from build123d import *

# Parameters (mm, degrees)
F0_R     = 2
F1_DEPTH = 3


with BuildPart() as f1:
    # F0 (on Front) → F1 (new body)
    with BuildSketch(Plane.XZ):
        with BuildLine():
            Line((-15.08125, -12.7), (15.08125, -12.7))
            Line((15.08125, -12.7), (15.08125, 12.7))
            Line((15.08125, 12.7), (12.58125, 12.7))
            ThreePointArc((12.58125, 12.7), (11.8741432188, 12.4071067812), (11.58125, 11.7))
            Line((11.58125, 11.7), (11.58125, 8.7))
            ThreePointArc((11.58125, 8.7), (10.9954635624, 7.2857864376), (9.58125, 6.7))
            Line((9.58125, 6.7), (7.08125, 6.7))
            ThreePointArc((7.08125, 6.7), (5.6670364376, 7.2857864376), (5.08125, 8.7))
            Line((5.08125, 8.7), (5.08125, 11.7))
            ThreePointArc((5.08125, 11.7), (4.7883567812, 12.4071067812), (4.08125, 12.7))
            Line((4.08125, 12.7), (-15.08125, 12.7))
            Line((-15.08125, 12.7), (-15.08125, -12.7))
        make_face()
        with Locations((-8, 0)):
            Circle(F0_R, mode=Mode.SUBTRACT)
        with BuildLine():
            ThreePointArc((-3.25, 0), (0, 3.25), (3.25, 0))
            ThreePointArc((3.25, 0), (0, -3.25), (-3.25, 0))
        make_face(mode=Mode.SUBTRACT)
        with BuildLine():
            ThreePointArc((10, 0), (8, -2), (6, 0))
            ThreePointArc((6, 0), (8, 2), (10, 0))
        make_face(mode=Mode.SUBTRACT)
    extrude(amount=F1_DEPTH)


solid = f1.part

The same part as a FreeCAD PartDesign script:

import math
import FreeCAD as App
import Part
import Sketcher
from FreeCAD import Vector
Q = App.Units.Quantity

doc = App.newDocument("Part")
body = doc.addObject("PartDesign::Body", "Body")

# Sketch on XZ plane
sketch1 = body.newObject("Sketcher::SketchObject", "Sketch")
sketch1.AttachmentSupport = (doc.getObject("XZ_Plane"), [""])
sketch1.MapMode = "FlatFace"
sketch1.addGeometry(Part.LineSegment(Vector(-15.1, -12.7, 0), Vector(15.1, -12.7, 0)), False)
sketch1.addGeometry(Part.LineSegment(Vector(15.1, -12.7, 0), Vector(15.1, 12.7, 0)), False)
sketch1.addGeometry(Part.LineSegment(Vector(15.1, 12.7, 0), Vector(12.6, 12.7, 0)), False)
sketch1.addGeometry(Part.ArcOfCircle(Part.Circle(Vector(12.6, 11.7, 0), Vector(0, 0, 1), 1), math.radians(90), math.radians(180)), False)
sketch1.addGeometry(Part.LineSegment(Vector(11.6, 11.7, 0), Vector(11.6, 8.7, 0)), False)
sketch1.addGeometry(Part.ArcOfCircle(Part.Circle(Vector(9.6, 8.7, 0), Vector(0, 0, 1), 2), math.radians(-90), math.radians(0)), False)
sketch1.addGeometry(Part.LineSegment(Vector(9.6, 6.7, 0), Vector(7.1, 6.7, 0)), False)
sketch1.addGeometry(Part.ArcOfCircle(Part.Circle(Vector(7.1, 8.7, 0), Vector(0, 0, 1), 2), math.radians(180), math.radians(270)), False)
sketch1.addGeometry(Part.LineSegment(Vector(5.1, 8.7, 0), Vector(5.1, 11.7, 0)), False)
sketch1.addGeometry(Part.ArcOfCircle(Part.Circle(Vector(4.1, 11.7, 0), Vector(0, 0, 1), 1), math.radians(0), math.radians(90)), False)
sketch1.addGeometry(Part.LineSegment(Vector(4.1, 12.7, 0), Vector(-15.1, 12.7, 0)), False)
sketch1.addGeometry(Part.LineSegment(Vector(-15.1, 12.7, 0), Vector(-15.1, -12.7, 0)), False)
sketch1.addGeometry(Part.Circle(Vector(-8, 0, 0), Vector(0, 0, 1), 2), False)
sketch1.addGeometry(Part.Circle(Vector(8, 0, 0), Vector(0, 0, 1), 2), False)
sketch1.addGeometry(Part.Circle(Vector(0, 0, 0), Vector(0, 0, 1), 3.2), False)
sketch1.addConstraint(Sketcher.Constraint("Coincident", 0, 2, 1, 1))
sketch1.addConstraint(Sketcher.Constraint("Coincident", 1, 2, 2, 1))
sketch1.addConstraint(Sketcher.Constraint("Tangent", 2, 2, 3, 1))
sketch1.addConstraint(Sketcher.Constraint("Tangent", 3, 2, 4, 1))
sketch1.addConstraint(Sketcher.Constraint("Tangent", 4, 2, 5, 2))
sketch1.addConstraint(Sketcher.Constraint("Tangent", 5, 1, 6, 1))
sketch1.addConstraint(Sketcher.Constraint("Tangent", 6, 2, 7, 2))
sketch1.addConstraint(Sketcher.Constraint("Tangent", 7, 1, 8, 1))
sketch1.addConstraint(Sketcher.Constraint("Tangent", 8, 2, 9, 1))
sketch1.addConstraint(Sketcher.Constraint("Tangent", 9, 2, 10, 1))
sketch1.addConstraint(Sketcher.Constraint("Coincident", 10, 2, 11, 1))
sketch1.addConstraint(Sketcher.Constraint("Coincident", 11, 2, 0, 1))
sketch1.addConstraint(Sketcher.Constraint("Horizontal", 0))
sketch1.addConstraint(Sketcher.Constraint("Vertical", 1))
sketch1.addConstraint(Sketcher.Constraint("Horizontal", 2))
sketch1.addConstraint(Sketcher.Constraint("Vertical", 4))
sketch1.addConstraint(Sketcher.Constraint("Horizontal", 6))
sketch1.addConstraint(Sketcher.Constraint("Vertical", 8))
sketch1.addConstraint(Sketcher.Constraint("Horizontal", 10))
sketch1.addConstraint(Sketcher.Constraint("Vertical", 11))
sketch1.addConstraint(Sketcher.Constraint("Coincident", 14, 3, -1, 1))
sketch1.addConstraint(Sketcher.Constraint("Equal", 5, 7))
sketch1.addConstraint(Sketcher.Constraint("Equal", 3, 9))
sketch1.addConstraint(Sketcher.Constraint("Equal", 7, 12))
sketch1.addConstraint(Sketcher.Constraint("Equal", 12, 13))
sketch1.addConstraint(Sketcher.Constraint("Symmetric", 12, 3, 13, 3, -1, 1))
sketch1.addConstraint(Sketcher.Constraint("Symmetric", 0, 2, 10, 2, -1, 1))
sketch1.addConstraint(Sketcher.Constraint("PointOnObject", 12, 3, -1))
sketch1.addConstraint(Sketcher.Constraint("Horizontal", 3, 3, 9, 3))
sketch1.addConstraint(Sketcher.Constraint("Equal", 2, 6))
sketch1.addConstraint(Sketcher.Constraint("Diameter", 12, Q("4 mm")))
sketch1.addConstraint(Sketcher.Constraint("Radius", 3, Q("1 mm")))
sketch1.addConstraint(Sketcher.Constraint("Diameter", 14, Q("6.5 mm")))
sketch1.addConstraint(Sketcher.Constraint("DistanceY", 4, 2, 4, 1, Q("3 mm")))
sketch1.addConstraint(Sketcher.Constraint("DistanceX", 2, 2, 2, 1, Q("2.5 mm")))
sketch1.addConstraint(Sketcher.Constraint("DistanceY", 1, 1, 1, 2, Q("25.4 mm")))
sketch1.addConstraint(Sketcher.Constraint("DistanceX", 12, 3, -1, 1, Q("8 mm")))
sketch1.addConstraint(Sketcher.Constraint("DistanceX", 0, 1, 0, 2, Q("30.1625 mm")))
pad1 = body.newObject("PartDesign::Pad", "Pad")
pad1.Profile = sketch1
pad1.Length = 3

doc.recompute()
